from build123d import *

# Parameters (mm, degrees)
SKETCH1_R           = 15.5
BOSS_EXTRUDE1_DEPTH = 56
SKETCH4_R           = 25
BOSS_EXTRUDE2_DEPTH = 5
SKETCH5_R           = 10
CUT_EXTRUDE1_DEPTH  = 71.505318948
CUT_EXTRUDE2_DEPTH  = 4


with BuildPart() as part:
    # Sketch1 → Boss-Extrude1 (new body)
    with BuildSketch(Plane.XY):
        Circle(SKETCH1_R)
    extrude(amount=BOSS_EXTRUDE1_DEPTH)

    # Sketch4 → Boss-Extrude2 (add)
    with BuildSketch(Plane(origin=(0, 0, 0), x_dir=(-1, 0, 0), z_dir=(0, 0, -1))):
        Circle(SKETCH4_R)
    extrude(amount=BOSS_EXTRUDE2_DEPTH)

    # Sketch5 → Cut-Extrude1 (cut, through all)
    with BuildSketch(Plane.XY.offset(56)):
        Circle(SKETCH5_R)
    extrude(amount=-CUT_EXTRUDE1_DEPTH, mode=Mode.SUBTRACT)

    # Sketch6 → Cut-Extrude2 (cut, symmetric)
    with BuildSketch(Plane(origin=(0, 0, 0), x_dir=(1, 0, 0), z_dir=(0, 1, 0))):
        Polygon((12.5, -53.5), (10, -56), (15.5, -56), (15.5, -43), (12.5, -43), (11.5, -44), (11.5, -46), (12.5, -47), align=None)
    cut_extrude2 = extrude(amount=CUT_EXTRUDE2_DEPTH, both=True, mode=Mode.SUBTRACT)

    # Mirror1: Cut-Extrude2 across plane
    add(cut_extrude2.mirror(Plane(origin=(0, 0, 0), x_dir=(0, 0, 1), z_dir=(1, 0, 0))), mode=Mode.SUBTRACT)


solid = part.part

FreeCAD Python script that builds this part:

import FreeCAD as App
import Part
import Sketcher

V = App.Vector
Q = App.Units.Quantity

doc = App.newDocument("Part")
body = doc.addObject("PartDesign::Body", "Body")

# Sketch on XY plane
sketch1 = body.newObject("Sketcher::SketchObject", "Sketch")
sketch1.AttachmentSupport = (doc.getObject("XY_Plane"), [""])
sketch1.MapMode = "FlatFace"
sketch1.addGeometry(Part.Circle(V(0, 0, 0), V(0, 0, 1), 15.5), False)
sketch1.addConstraint([
    Sketcher.Constraint("Coincident", 0, 3, -1, 1),
    Sketcher.Constraint("Diameter", 0, Q("31 mm")),
])
pad1 = body.newObject("PartDesign::Pad", "Pad")
pad1.Profile = sketch1
pad1.Length = 56

# Sketch on XY plane
sketch2 = body.newObject("Sketcher::SketchObject", "Sketch001")
sketch2.AttachmentSupport = (doc.getObject("XY_Plane"), [""])
sketch2.MapMode = "FlatFace"
sketch2.addGeometry(Part.Circle(V(0, 0, 0), V(0, 0, 1), 25), False)
sketch2.addConstraint([
    Sketcher.Constraint("Coincident", 0, 3, -1, 1),
    Sketcher.Constraint("Diameter", 0, Q("50 mm")),
])
pad2 = body.newObject("PartDesign::Pad", "Pad001")
pad2.Profile = sketch2
pad2.Length = 5
pad2.Reversed = True

# Sketch on XY plane
sketch3 = body.newObject("Sketcher::SketchObject", "Sketch002")
sketch3.AttachmentSupport = (doc.getObject("XY_Plane"), [""])
sketch3.MapMode = "FlatFace"
sketch3.AttachmentOffset = App.Placement(V(0, 0, 56), App.Rotation())
sketch3.addGeometry(Part.Circle(V(0, 0, 0), V(0, 0, 1), 10), False)
sketch3.addConstraint([
    Sketcher.Constraint("Coincident", 0, 3, -1, 1),
    Sketcher.Constraint("Diameter", 0, Q("20 mm")),
])
pocket1 = body.newObject("PartDesign::Pocket", "Pocket")
pocket1.Profile = sketch3
pocket1.Type = "ThroughAll"

# Sketch on XZ plane
sketch4 = body.newObject("Sketcher::SketchObject", "Sketch003")
sketch4.AttachmentSupport = (doc.getObject("XZ_Plane"), [""])
sketch4.MapMode = "FlatFace"
sketch4.addGeometry([
    Part.LineSegment(V(12.5, 53.5, 0), V(10, 56, 0)),  # 0
    Part.LineSegment(V(10, 56, 0), V(15.5, 56, 0)),  # 1
    Part.LineSegment(V(15.5, 56, 0), V(15.5, 43, 0)),  # 2
    Part.LineSegment(V(15.5, 43, 0), V(12.5, 43, 0)),  # 3
    Part.LineSegment(V(12.5, 43, 0), V(11.5, 44, 0)),  # 4
    Part.LineSegment(V(11.5, 44, 0), V(11.5, 46, 0)),  # 5
    Part.LineSegment(V(11.5, 46, 0), V(12.5, 47, 0)),  # 6
    Part.LineSegment(V(12.5, 47, 0), V(12.5, 53.5, 0)),  # 7
], False)
sketch4.addConstraint([
    Sketcher.Constraint("Coincident", 0, 2, 1, 1),
    Sketcher.Constraint("Coincident", 1, 2, 2, 1),
    Sketcher.Constraint("Coincident", 2, 2, 3, 1),
    Sketcher.Constraint("Coincident", 3, 2, 4, 1),
    Sketcher.Constraint("Coincident", 4, 2, 5, 1),
    Sketcher.Constraint("Coincident", 5, 2, 6, 1),
    Sketcher.Constraint("Coincident", 6, 2, 7, 1),
    Sketcher.Constraint("Coincident", 7, 2, 0, 1),
    Sketcher.Constraint("Horizontal", 1),
    Sketcher.Constraint("Vertical", 2),
    Sketcher.Constraint("Horizontal", 3),
    Sketcher.Constraint("Vertical", 5),
    Sketcher.Constraint("Vertical", 7),
    Sketcher.Constraint("Parallel", 0, 4),
    Sketcher.Constraint("Perpendicular", 4, 6),
    Sketcher.Constraint("Vertical", 3, 2, 6, 2),
    Sketcher.Constraint("Equal", 4, 6),
    Sketcher.Constraint("DistanceX", 3, 2, 3, 1, Q("3 mm")),
    Sketcher.Constraint("DistanceY", 2, 2, 2, 1, Q("13 mm")),
    Sketcher.Constraint("DistanceY", 5, 1, 5, 2, Q("2 mm")),
    Sketcher.Constraint("DistanceX", 1, 1, 1, 2, Q("5.5 mm")),
    Sketcher.Constraint("DistanceY", 7, 1, 7, 2, Q("6.5 mm")),
    Sketcher.Constraint("DistanceX", -1, 1, 0, 2, Q("10 mm")),
    Sketcher.Constraint("DistanceY", -1, 1, 0, 2, Q("56 mm")),
])
pocket2 = body.newObject("PartDesign::Pocket", "Pocket001")
pocket2.Profile = sketch4
pocket2.Length = 8
pocket2.Midplane = True
doc.recompute()

mirrored = body.newObject("PartDesign::Mirrored", "Mirrored")
mirrored.Originals = [pocket2]
mirrored.MirrorPlane = (doc.getObject("YZ_Plane"), [""])
body.Tip = mirrored

doc.recompute()
